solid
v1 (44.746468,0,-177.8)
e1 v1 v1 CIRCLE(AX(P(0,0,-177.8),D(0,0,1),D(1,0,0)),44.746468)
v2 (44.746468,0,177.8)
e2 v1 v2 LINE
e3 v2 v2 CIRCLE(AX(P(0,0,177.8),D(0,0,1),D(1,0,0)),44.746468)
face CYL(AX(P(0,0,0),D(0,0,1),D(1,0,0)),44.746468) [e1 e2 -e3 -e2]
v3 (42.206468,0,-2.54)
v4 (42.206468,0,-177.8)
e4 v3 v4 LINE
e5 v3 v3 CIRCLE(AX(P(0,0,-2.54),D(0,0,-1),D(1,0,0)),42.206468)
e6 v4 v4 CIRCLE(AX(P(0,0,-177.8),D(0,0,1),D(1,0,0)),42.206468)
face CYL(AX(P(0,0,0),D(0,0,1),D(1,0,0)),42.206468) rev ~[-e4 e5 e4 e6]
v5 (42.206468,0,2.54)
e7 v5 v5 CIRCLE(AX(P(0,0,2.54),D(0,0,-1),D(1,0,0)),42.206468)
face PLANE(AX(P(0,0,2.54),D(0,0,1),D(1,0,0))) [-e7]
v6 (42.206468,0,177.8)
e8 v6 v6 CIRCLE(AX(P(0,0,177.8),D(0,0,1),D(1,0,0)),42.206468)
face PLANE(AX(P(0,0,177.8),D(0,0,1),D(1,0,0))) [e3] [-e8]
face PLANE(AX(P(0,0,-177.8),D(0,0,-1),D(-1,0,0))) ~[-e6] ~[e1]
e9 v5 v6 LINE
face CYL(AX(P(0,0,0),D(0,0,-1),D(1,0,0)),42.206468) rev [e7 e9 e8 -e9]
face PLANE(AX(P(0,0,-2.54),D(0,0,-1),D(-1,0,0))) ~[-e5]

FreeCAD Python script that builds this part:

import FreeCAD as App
import Part
import Sketcher
from FreeCAD import Vector
Q = App.Units.Quantity


def faces_at(feature, points):
    """Names of the faces that lie closest to the given points."""
    faces = feature.Shape.Faces
    near = lambda p: min(range(len(faces)), key=lambda i: faces[i].distToShape(Part.Vertex(*p))[0])
    return sorted({f"Face{near(p) + 1}" for p in points})

doc = App.newDocument("Part")
params = doc.addObject("Spreadsheet::Sheet", "Params")
for row, (alias, value) in enumerate([
    ("pad1_length", "7 in"),
    ("thickness_wall", "0.1 in"),
], start=1):
    params.set(f"A{row}", alias)
    params.set(f"B{row}", "=" + value)
    params.setAlias(f"B{row}", alias)

body = doc.addObject("PartDesign::Body", "Body")

# Sketch on XY plane
sketch1 = body.newObject("Sketcher::SketchObject", "Sketch")
sketch1.AttachmentSupport = (doc.getObject("XY_Plane"), [""])
sketch1.MapMode = "FlatFace"
sketch1.addGeometry(Part.Circle(Vector(0, 0, 0), Vector(0, 0, 1), 45), False)
sketch1.addConstraint([
    Sketcher.Constraint("Coincident", 0, 3, -1, 1),
    Sketcher.Constraint("Diameter", 0, Q("89.492936 mm")),
])
pad1 = body.newObject("PartDesign::Pad", "Pad")
pad1.Profile = sketch1
pad1.setExpression("Length", "Params.pad1_length")
doc.recompute()

thickness = body.newObject("PartDesign::Thickness", "Thickness")
thickness.Base = (pad1, faces_at(pad1, [(0, 0, 177.8)]))
thickness.setExpression("Value", "Params.thickness_wall")
thickness.Reversed = True
thickness.Join = "Arc"
body2 = doc.addObject("PartDesign::Body", "Body001")
doc.recompute()

body2.BaseFeature = body
doc.recompute()

mirroring = doc.addObject("Part::Mirroring", "Mirroring")
mirroring.Source = body
mirroring.Base = Vector(0, 0, 0)
mirroring.Normal = Vector(0, 0, 1)
body3 = doc.addObject("PartDesign::Body", "Body002")
body3.BaseFeature = mirroring
boolean = body2.newObject("PartDesign::Boolean", "Boolean")
boolean.Type = "Fuse"
boolean.addObjects([body3])
doc.recompute()
mirroring.Visibility = False

doc.recompute()
